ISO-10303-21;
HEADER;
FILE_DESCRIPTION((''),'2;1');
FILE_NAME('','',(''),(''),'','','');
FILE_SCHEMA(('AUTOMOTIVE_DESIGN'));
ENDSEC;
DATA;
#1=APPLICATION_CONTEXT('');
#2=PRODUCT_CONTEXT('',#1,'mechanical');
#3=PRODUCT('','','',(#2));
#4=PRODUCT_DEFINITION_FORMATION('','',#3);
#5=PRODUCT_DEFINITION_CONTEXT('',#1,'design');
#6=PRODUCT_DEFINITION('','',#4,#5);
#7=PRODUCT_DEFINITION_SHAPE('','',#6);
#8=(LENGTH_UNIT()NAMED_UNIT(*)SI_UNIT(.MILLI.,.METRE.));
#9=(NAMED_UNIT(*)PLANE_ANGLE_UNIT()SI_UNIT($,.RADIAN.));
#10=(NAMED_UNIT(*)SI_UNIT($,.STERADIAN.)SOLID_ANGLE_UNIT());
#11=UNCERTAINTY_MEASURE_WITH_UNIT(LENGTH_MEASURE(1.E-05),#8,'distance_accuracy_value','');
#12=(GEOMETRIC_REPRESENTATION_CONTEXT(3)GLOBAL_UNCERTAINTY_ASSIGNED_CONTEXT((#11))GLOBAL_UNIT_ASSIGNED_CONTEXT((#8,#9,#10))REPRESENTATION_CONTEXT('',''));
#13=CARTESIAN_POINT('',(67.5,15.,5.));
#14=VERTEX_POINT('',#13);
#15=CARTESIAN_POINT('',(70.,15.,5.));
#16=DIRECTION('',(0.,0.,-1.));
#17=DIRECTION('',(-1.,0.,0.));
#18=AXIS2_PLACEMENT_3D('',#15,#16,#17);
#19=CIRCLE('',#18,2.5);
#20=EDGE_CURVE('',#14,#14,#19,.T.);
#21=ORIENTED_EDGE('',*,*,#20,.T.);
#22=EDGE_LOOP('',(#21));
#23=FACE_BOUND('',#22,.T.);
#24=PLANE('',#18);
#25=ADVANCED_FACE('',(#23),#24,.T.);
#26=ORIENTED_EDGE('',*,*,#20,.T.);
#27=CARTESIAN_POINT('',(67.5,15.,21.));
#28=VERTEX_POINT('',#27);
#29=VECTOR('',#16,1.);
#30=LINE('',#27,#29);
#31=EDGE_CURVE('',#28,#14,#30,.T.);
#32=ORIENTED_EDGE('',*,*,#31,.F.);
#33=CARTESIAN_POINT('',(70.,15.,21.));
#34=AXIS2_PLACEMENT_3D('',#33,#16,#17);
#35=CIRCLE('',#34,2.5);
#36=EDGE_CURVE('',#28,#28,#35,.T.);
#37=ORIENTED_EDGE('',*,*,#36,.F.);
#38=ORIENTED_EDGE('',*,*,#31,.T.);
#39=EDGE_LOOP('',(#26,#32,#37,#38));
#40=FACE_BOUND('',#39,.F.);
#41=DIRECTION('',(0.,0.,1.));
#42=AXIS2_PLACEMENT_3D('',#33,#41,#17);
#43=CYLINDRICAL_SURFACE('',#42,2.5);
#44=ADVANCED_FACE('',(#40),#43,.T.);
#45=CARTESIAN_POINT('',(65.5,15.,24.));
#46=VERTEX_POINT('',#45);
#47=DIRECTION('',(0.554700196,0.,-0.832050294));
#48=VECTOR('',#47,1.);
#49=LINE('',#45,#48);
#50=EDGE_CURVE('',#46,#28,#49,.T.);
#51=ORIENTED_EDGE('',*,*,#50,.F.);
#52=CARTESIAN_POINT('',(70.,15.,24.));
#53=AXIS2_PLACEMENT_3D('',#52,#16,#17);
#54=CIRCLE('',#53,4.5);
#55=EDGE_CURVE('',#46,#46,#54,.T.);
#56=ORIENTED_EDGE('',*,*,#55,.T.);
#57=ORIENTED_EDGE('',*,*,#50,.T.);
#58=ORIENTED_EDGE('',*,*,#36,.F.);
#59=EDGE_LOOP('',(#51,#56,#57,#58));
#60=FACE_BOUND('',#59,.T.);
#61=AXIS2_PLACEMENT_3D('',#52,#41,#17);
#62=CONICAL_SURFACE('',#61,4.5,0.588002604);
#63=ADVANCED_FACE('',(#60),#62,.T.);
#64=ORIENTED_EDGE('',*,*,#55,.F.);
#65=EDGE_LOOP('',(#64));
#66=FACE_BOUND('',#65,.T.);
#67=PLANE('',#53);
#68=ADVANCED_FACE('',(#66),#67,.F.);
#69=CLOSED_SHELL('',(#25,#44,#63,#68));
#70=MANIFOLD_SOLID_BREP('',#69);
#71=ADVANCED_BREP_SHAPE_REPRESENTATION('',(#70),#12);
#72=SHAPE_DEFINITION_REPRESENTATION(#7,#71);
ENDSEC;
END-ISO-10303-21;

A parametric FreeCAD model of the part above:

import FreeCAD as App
import Part
import Sketcher
from FreeCAD import Vector
Q = App.Units.Quantity


def add_polygon(sketch, points):
    """Adds a closed chain of lines whose ends are joined by coincident constraints."""
    first, n = sketch.GeometryCount, len(points)
    for a, b in zip(points, points[1:] + points[:1]):
        sketch.addGeometry(Part.LineSegment(App.Vector(*a, 0), App.Vector(*b, 0)), False)
    for i in range(n):
        sketch.addConstraint(Sketcher.Constraint("Coincident", first + i, 2, first + (i + 1) % n, 1))

doc = App.newDocument("Part")
body = doc.addObject("PartDesign::Body", "Body")

# Sketch on XZ plane
sketch1 = body.newObject("Sketcher::SketchObject", "Sketch")
sketch1.AttachmentSupport = (doc.getObject("XZ_Plane"), [""])
sketch1.MapMode = "FlatFace"
add_polygon(sketch1, [(0, -3), (4.5, -3), (2.5, 0), (0, 0)])  # lines 0-3
sketch1.addConstraint(Sketcher.Constraint("Horizontal", 0))
sketch1.addConstraint(Sketcher.Constraint("Horizontal", 2))
sketch1.addConstraint(Sketcher.Constraint("Vertical", 3))
sketch1.addConstraint(Sketcher.Constraint("Coincident", 2, 2, -1, 1))
sketch1.addConstraint(Sketcher.Constraint("DistanceY", 3, 2, 3, 1, Q("3 mm")))
sketch1.addConstraint(Sketcher.Constraint("DistanceX", 0, 1, 0, 2, Q("4.5 mm")))
sketch1.addConstraint(Sketcher.Constraint("DistanceX", 2, 2, 2, 1, Q("2.5 mm")))
revolution = body.newObject("PartDesign::Revolution", "Revolution")
revolution.Profile = sketch1
revolution.ReferenceAxis = (sketch1, ["V_Axis"])
revolution.Angle = 360
body2 = doc.addObject("PartDesign::Body", "Body001")

# Sketch on XY plane
sketch2 = body2.newObject("Sketcher::SketchObject", "Sketch001")
sketch2.AttachmentSupport = (doc.getObject("XY_Plane001"), [""])
sketch2.MapMode = "FlatFace"
sketch2.addGeometry(Part.Circle(Vector(0, 0, 0), Vector(0, 0, 1), 2.5), False)
sketch2.addConstraint(Sketcher.Constraint("Coincident", 0, 3, -1, 1))
sketch2.addConstraint(Sketcher.Constraint("Diameter", 0, Q("5 mm")))
pad1 = body2.newObject("PartDesign::Pad", "Pad")
pad1.Profile = sketch2
pad1.Length = 16
doc.recompute()

boolean = body2.newObject("PartDesign::Boolean", "Boolean")
boolean.Type = "Fuse"
boolean.addObjects([body])
body3 = doc.addObject("PartDesign::Body", "Body002")
doc.recompute()

body2.Placement = App.Placement(Vector(45, 15, 21), App.Rotation(Vector(0, 1, 0), 180))
boolean2 = body3.newObject("PartDesign::Boolean", "Boolean001")
boolean2.Type = "Fuse"
boolean2.addObjects([body2])
body4 = doc.addObject("PartDesign::Body", "Body003")
doc.recompute()

body3.Placement = App.Placement(Vector(25, 0, 0), App.Rotation(Vector(0, 0, 1), 0))
boolean3 = body4.newObject("PartDesign::Boolean", "Boolean002")
boolean3.Type = "Fuse"
boolean3.addObjects([body3])

doc.recompute()
